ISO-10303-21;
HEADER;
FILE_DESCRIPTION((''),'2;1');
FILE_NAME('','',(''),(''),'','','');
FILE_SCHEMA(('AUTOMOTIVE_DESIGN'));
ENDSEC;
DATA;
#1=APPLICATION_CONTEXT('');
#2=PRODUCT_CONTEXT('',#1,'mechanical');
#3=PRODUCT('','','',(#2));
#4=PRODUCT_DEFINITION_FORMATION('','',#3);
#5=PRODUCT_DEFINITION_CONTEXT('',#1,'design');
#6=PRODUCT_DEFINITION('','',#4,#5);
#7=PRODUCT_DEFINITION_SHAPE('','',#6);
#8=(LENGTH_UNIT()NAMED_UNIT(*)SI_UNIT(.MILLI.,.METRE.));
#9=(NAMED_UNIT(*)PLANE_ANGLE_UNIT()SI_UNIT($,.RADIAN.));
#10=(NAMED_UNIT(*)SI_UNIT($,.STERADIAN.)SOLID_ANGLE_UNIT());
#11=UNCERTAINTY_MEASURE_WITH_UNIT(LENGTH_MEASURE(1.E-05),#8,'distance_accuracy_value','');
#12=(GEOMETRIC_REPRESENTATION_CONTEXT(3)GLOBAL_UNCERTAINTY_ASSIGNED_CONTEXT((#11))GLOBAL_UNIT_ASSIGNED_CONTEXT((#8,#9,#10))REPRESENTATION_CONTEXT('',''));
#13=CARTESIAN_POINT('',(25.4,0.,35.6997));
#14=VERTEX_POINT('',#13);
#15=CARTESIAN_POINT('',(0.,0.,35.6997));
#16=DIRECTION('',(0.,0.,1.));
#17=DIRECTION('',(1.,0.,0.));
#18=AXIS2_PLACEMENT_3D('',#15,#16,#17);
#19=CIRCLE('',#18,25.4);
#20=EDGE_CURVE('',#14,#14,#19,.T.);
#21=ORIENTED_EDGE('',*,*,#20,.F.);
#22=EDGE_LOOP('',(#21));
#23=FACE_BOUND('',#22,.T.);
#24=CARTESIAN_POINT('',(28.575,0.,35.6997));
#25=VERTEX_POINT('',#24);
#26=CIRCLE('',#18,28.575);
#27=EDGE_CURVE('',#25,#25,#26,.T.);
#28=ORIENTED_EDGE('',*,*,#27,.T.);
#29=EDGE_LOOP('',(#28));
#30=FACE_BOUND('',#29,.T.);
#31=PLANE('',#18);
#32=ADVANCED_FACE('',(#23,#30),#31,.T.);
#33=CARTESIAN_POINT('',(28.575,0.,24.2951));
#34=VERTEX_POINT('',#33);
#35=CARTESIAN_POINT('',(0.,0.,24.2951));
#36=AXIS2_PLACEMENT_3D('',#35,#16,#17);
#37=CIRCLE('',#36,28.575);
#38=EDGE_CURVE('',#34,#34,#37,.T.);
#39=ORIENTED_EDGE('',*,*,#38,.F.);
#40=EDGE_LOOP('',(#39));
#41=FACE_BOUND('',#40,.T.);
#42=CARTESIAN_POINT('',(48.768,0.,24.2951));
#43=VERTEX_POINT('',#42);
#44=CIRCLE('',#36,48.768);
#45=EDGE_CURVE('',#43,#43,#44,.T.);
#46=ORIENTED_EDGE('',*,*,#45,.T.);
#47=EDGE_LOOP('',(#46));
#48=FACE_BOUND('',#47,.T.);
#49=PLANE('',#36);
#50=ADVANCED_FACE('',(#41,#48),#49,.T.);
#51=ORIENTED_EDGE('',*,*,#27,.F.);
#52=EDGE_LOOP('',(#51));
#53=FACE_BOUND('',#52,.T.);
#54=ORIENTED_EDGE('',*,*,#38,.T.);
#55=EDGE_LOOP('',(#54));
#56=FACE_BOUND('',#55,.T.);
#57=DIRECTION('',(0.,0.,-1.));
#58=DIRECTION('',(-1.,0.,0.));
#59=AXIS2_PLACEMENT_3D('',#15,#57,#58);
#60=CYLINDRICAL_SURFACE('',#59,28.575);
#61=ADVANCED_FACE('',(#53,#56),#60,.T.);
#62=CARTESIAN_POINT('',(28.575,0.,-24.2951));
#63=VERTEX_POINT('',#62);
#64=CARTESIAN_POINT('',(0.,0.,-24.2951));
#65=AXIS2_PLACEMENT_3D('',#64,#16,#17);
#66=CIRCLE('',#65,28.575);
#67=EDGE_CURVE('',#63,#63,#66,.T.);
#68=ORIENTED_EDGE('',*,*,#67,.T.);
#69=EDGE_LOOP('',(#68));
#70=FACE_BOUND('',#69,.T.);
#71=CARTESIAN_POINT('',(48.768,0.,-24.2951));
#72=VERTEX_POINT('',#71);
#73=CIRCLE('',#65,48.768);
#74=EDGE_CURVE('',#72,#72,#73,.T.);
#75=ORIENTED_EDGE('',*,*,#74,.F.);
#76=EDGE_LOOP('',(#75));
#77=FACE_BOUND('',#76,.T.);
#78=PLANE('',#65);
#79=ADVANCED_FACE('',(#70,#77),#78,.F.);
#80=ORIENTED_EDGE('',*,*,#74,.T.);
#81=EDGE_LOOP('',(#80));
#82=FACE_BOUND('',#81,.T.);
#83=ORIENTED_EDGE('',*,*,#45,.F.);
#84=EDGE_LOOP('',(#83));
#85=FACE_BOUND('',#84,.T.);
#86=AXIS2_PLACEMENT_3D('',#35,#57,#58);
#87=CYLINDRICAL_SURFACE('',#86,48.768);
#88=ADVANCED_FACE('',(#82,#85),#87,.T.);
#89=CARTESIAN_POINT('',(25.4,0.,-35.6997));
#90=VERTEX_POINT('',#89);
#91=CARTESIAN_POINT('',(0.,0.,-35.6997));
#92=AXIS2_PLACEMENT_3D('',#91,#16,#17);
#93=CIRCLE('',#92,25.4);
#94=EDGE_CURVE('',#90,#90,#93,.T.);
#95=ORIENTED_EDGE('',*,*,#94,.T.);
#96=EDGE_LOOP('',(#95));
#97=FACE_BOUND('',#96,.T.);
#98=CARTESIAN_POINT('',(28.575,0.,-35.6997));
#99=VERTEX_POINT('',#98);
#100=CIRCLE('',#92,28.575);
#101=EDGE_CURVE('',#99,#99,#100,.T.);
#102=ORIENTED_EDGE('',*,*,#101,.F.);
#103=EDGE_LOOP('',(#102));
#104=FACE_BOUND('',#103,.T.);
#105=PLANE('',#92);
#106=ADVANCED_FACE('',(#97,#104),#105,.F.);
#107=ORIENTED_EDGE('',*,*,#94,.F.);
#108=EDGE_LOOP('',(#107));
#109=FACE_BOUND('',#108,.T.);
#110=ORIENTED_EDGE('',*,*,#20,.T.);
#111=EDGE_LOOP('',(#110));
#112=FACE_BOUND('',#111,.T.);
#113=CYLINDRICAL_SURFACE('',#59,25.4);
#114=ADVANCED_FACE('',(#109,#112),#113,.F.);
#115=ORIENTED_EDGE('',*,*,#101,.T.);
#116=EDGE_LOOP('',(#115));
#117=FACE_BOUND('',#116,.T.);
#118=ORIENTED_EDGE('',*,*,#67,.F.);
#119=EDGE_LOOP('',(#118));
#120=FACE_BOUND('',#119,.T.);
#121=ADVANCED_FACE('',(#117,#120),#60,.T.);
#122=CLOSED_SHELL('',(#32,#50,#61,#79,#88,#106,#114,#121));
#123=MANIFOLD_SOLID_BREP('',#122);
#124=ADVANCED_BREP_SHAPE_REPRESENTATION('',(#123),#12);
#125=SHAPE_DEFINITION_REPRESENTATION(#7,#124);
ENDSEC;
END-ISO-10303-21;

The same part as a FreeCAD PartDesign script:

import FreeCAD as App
import Part
import Sketcher
Q = App.Units.Quantity

doc = App.newDocument("Part")
body = doc.addObject("PartDesign::Body", "Body")

sketch1 = body.newObject("Sketcher::SketchObject", "Sketch")
sketch1.AttachmentSupport = (doc.getObject("XY_Plane"), [""])
sketch1.MapMode = "FlatFace"
sketch1.addGeometry(Part.Circle(App.Vector(0, 0, 0), App.Vector(0, 0, 1), 28.575), False)
sketch1.addGeometry(Part.Circle(App.Vector(0, 0, 0), App.Vector(0, 0, 1), 25.4), False)
sketch1.addConstraint(Sketcher.Constraint("Coincident", 0, 3, -1, 1))
sketch1.addConstraint(Sketcher.Constraint("Coincident", 1, 3, -1, 1))
sketch1.addConstraint(Sketcher.Constraint("Diameter", 1, Q("2 in")))
sketch1.addConstraint(Sketcher.Constraint("Diameter", 0, Q("2.25 in")))
pad1 = body.newObject("PartDesign::Pad", "Pad")
pad1.Profile = sketch1
pad1.Length = Q("2.811 in")
pad1.Midplane = True

sketch2 = body.newObject("Sketcher::SketchObject", "Sketch001")
sketch2.AttachmentSupport = (doc.getObject("XY_Plane"), [""])
sketch2.MapMode = "FlatFace"
sketch2.addGeometry(Part.Circle(App.Vector(0, 0, 0), App.Vector(0, 0, 1), 48.768), False)
sketch2.addGeometry(Part.Circle(App.Vector(0, 0, 0), App.Vector(0, 0, 1), 28.575), False)
sketch2.addConstraint(Sketcher.Constraint("Coincident", 0, 3, -1, 1))
sketch2.addConstraint(Sketcher.Constraint("Coincident", 1, 3, -1, 1))
sketch2.addConstraint(Sketcher.Constraint("Diameter", 0, Q("3.84 in")))
sketch2.addConstraint(Sketcher.Constraint("Diameter", 1, Q("2.25 in")))
pad2 = body.newObject("PartDesign::Pad", "Pad001")
pad2.Profile = sketch2
pad2.Length = Q("1.913 in")
pad2.Midplane = True

doc.recompute()
